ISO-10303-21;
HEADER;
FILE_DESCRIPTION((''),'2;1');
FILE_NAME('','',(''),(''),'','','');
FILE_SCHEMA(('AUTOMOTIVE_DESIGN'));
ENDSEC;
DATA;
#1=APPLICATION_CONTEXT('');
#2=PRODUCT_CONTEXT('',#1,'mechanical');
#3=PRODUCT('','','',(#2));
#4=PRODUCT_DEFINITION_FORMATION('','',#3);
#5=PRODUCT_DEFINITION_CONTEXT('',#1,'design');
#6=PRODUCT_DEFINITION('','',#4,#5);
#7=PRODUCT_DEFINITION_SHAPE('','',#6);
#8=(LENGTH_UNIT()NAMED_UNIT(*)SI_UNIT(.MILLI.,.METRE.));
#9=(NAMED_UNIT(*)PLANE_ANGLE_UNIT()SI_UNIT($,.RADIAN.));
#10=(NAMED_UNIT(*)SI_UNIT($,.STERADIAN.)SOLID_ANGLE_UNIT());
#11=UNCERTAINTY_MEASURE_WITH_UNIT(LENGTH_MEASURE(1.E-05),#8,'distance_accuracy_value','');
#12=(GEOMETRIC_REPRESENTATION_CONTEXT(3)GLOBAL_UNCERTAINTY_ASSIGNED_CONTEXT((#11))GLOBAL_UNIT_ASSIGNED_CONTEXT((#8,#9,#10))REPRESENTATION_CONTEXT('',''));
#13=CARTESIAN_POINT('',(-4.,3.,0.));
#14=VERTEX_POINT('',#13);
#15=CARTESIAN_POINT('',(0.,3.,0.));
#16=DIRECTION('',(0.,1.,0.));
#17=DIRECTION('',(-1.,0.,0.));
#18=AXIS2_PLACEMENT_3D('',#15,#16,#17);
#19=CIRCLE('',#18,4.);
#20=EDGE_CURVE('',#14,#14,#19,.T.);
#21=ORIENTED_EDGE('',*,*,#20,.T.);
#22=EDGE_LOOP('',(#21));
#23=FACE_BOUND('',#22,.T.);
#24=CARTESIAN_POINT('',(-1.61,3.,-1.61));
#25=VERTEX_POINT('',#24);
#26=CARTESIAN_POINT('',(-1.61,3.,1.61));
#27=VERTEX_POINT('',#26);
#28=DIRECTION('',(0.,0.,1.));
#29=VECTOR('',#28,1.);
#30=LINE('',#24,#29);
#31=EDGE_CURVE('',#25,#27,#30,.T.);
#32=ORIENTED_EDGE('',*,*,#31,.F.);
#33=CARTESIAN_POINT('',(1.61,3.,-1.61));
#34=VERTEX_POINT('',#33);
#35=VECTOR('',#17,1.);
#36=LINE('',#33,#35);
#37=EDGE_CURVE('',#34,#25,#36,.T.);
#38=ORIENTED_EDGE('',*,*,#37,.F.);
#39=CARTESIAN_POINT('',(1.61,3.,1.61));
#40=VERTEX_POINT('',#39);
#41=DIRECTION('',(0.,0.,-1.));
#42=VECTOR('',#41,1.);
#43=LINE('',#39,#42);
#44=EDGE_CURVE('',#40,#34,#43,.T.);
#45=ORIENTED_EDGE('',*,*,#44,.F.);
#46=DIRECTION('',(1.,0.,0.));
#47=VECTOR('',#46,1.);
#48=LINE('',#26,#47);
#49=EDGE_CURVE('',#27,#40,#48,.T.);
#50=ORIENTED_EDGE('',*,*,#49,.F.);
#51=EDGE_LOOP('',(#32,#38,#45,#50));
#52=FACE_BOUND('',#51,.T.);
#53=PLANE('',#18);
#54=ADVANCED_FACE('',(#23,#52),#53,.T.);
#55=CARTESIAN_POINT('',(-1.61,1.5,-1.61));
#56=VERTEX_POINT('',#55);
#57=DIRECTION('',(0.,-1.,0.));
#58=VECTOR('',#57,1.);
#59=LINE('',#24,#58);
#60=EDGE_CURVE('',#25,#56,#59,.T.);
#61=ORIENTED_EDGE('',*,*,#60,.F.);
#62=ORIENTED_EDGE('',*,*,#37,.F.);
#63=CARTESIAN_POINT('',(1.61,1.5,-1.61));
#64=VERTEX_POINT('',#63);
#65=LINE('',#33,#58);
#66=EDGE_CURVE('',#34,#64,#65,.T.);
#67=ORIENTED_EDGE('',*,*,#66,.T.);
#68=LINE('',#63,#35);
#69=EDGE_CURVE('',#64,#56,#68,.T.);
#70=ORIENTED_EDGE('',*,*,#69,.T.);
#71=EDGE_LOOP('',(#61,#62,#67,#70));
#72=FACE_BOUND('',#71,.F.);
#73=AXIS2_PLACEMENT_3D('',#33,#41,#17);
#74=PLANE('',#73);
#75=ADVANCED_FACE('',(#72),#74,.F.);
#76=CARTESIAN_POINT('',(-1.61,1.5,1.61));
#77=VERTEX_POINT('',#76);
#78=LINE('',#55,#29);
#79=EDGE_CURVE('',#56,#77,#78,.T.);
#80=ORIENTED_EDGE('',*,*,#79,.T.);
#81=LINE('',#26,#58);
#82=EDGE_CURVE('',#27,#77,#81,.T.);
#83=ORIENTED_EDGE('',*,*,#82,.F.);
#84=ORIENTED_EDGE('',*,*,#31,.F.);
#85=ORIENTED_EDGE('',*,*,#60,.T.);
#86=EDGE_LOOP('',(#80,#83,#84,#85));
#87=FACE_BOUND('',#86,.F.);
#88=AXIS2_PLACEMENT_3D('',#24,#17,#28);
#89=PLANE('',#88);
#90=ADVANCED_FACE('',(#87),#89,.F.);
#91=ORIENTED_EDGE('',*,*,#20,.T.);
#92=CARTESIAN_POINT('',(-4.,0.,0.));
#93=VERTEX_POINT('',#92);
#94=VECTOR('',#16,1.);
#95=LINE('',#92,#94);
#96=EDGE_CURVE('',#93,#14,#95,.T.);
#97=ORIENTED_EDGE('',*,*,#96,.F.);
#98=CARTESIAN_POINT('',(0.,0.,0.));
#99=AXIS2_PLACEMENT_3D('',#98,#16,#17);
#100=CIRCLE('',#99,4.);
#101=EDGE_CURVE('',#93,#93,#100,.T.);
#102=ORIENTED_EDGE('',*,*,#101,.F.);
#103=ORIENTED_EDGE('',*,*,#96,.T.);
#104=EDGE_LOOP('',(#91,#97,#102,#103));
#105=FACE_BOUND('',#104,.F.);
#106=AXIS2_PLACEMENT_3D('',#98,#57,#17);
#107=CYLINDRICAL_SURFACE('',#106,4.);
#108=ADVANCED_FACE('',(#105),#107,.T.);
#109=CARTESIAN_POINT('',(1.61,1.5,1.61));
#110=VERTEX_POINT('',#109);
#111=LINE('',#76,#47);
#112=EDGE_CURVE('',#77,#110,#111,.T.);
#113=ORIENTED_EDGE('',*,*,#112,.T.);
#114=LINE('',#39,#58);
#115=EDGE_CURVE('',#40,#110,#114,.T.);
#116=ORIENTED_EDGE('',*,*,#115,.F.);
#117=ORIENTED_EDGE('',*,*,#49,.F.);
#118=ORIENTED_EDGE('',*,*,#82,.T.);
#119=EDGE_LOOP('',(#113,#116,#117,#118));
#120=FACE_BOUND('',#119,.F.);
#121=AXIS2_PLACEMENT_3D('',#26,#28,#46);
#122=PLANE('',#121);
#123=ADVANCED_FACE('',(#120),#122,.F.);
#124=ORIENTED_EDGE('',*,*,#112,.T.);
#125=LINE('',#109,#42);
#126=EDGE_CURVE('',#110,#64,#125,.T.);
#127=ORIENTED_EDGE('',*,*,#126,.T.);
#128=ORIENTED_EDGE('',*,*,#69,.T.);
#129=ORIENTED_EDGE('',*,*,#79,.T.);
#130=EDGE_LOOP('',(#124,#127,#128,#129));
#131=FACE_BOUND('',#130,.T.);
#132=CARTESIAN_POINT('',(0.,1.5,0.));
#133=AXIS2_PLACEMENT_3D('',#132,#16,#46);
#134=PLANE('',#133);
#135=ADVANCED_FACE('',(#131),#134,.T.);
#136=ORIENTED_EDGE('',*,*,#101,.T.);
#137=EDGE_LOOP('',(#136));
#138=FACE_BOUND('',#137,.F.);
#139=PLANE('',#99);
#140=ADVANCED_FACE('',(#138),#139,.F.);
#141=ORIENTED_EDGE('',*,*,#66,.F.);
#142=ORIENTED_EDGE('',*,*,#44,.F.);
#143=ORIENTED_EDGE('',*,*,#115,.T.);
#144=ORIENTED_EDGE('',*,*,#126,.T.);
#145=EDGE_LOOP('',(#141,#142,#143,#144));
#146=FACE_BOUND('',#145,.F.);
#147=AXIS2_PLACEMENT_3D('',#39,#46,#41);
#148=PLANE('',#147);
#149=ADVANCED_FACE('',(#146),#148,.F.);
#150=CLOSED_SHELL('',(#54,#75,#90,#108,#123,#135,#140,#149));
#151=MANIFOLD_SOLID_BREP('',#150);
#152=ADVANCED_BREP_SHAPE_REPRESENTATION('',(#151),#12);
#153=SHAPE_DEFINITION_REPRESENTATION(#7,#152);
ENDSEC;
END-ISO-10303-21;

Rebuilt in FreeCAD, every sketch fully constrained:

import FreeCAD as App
import Part
import Sketcher

V = App.Vector
Q = App.Units.Quantity

doc = App.newDocument("Part")
body = doc.addObject("PartDesign::Body", "Body")

sketch1 = body.newObject("Sketcher::SketchObject", "Sketch")
sketch1.AttachmentSupport = (doc.getObject("XZ_Plane"), [""])
sketch1.MapMode = "FlatFace"
sketch1.addGeometry(Part.Circle(V(0, 0, 0), V(0, 0, 1), 4), False)
sketch1.addConstraint(Sketcher.Constraint("Coincident", 0, 3, -1, 1))
sketch1.addConstraint(Sketcher.Constraint("Diameter", 0, Q("8 mm")))
pad1 = body.newObject("PartDesign::Pad", "Pad")
pad1.Profile = sketch1
pad1.Length = 3
pad1.Reversed = True

sketch2 = body.newObject("Sketcher::SketchObject", "Sketch001")
sketch2.AttachmentSupport = (doc.getObject("XZ_Plane"), [""])
sketch2.MapMode = "FlatFace"
sketch2.AttachmentOffset = App.Placement(V(0, 0, -3), App.Rotation())
sketch2.addGeometry(Part.LineSegment(V(-1.6, -1.6, 0), V(-1.6, 1.6, 0)), False)
sketch2.addGeometry(Part.LineSegment(V(-1.6, 1.6, 0), V(1.6, 1.6, 0)), False)
sketch2.addGeometry(Part.LineSegment(V(1.6, 1.6, 0), V(1.6, -1.6, 0)), False)
sketch2.addGeometry(Part.LineSegment(V(1.6, -1.6, 0), V(-1.6, -1.6, 0)), False)
sketch2.addConstraint(Sketcher.Constraint("Coincident", 0, 2, 1, 1))
sketch2.addConstraint(Sketcher.Constraint("Coincident", 1, 2, 2, 1))
sketch2.addConstraint(Sketcher.Constraint("Coincident", 2, 2, 3, 1))
sketch2.addConstraint(Sketcher.Constraint("Coincident", 3, 2, 0, 1))
sketch2.addConstraint(Sketcher.Constraint("Vertical", 0))
sketch2.addConstraint(Sketcher.Constraint("Horizontal", 1))
sketch2.addConstraint(Sketcher.Constraint("Vertical", 2))
sketch2.addConstraint(Sketcher.Constraint("Horizontal", 3))
sketch2.addConstraint(Sketcher.Constraint("Symmetric", 0, 2, 2, 2, -1, 1))
sketch2.addConstraint(Sketcher.Constraint("Equal", 3, 0))
sketch2.addConstraint(Sketcher.Constraint("DistanceX", 1, 1, 1, 2, Q("3.22 mm")))
pocket1 = body.newObject("PartDesign::Pocket", "Pocket")
pocket1.Profile = sketch2
pocket1.Length = 1.5
pocket1.Reversed = True

doc.recompute()
